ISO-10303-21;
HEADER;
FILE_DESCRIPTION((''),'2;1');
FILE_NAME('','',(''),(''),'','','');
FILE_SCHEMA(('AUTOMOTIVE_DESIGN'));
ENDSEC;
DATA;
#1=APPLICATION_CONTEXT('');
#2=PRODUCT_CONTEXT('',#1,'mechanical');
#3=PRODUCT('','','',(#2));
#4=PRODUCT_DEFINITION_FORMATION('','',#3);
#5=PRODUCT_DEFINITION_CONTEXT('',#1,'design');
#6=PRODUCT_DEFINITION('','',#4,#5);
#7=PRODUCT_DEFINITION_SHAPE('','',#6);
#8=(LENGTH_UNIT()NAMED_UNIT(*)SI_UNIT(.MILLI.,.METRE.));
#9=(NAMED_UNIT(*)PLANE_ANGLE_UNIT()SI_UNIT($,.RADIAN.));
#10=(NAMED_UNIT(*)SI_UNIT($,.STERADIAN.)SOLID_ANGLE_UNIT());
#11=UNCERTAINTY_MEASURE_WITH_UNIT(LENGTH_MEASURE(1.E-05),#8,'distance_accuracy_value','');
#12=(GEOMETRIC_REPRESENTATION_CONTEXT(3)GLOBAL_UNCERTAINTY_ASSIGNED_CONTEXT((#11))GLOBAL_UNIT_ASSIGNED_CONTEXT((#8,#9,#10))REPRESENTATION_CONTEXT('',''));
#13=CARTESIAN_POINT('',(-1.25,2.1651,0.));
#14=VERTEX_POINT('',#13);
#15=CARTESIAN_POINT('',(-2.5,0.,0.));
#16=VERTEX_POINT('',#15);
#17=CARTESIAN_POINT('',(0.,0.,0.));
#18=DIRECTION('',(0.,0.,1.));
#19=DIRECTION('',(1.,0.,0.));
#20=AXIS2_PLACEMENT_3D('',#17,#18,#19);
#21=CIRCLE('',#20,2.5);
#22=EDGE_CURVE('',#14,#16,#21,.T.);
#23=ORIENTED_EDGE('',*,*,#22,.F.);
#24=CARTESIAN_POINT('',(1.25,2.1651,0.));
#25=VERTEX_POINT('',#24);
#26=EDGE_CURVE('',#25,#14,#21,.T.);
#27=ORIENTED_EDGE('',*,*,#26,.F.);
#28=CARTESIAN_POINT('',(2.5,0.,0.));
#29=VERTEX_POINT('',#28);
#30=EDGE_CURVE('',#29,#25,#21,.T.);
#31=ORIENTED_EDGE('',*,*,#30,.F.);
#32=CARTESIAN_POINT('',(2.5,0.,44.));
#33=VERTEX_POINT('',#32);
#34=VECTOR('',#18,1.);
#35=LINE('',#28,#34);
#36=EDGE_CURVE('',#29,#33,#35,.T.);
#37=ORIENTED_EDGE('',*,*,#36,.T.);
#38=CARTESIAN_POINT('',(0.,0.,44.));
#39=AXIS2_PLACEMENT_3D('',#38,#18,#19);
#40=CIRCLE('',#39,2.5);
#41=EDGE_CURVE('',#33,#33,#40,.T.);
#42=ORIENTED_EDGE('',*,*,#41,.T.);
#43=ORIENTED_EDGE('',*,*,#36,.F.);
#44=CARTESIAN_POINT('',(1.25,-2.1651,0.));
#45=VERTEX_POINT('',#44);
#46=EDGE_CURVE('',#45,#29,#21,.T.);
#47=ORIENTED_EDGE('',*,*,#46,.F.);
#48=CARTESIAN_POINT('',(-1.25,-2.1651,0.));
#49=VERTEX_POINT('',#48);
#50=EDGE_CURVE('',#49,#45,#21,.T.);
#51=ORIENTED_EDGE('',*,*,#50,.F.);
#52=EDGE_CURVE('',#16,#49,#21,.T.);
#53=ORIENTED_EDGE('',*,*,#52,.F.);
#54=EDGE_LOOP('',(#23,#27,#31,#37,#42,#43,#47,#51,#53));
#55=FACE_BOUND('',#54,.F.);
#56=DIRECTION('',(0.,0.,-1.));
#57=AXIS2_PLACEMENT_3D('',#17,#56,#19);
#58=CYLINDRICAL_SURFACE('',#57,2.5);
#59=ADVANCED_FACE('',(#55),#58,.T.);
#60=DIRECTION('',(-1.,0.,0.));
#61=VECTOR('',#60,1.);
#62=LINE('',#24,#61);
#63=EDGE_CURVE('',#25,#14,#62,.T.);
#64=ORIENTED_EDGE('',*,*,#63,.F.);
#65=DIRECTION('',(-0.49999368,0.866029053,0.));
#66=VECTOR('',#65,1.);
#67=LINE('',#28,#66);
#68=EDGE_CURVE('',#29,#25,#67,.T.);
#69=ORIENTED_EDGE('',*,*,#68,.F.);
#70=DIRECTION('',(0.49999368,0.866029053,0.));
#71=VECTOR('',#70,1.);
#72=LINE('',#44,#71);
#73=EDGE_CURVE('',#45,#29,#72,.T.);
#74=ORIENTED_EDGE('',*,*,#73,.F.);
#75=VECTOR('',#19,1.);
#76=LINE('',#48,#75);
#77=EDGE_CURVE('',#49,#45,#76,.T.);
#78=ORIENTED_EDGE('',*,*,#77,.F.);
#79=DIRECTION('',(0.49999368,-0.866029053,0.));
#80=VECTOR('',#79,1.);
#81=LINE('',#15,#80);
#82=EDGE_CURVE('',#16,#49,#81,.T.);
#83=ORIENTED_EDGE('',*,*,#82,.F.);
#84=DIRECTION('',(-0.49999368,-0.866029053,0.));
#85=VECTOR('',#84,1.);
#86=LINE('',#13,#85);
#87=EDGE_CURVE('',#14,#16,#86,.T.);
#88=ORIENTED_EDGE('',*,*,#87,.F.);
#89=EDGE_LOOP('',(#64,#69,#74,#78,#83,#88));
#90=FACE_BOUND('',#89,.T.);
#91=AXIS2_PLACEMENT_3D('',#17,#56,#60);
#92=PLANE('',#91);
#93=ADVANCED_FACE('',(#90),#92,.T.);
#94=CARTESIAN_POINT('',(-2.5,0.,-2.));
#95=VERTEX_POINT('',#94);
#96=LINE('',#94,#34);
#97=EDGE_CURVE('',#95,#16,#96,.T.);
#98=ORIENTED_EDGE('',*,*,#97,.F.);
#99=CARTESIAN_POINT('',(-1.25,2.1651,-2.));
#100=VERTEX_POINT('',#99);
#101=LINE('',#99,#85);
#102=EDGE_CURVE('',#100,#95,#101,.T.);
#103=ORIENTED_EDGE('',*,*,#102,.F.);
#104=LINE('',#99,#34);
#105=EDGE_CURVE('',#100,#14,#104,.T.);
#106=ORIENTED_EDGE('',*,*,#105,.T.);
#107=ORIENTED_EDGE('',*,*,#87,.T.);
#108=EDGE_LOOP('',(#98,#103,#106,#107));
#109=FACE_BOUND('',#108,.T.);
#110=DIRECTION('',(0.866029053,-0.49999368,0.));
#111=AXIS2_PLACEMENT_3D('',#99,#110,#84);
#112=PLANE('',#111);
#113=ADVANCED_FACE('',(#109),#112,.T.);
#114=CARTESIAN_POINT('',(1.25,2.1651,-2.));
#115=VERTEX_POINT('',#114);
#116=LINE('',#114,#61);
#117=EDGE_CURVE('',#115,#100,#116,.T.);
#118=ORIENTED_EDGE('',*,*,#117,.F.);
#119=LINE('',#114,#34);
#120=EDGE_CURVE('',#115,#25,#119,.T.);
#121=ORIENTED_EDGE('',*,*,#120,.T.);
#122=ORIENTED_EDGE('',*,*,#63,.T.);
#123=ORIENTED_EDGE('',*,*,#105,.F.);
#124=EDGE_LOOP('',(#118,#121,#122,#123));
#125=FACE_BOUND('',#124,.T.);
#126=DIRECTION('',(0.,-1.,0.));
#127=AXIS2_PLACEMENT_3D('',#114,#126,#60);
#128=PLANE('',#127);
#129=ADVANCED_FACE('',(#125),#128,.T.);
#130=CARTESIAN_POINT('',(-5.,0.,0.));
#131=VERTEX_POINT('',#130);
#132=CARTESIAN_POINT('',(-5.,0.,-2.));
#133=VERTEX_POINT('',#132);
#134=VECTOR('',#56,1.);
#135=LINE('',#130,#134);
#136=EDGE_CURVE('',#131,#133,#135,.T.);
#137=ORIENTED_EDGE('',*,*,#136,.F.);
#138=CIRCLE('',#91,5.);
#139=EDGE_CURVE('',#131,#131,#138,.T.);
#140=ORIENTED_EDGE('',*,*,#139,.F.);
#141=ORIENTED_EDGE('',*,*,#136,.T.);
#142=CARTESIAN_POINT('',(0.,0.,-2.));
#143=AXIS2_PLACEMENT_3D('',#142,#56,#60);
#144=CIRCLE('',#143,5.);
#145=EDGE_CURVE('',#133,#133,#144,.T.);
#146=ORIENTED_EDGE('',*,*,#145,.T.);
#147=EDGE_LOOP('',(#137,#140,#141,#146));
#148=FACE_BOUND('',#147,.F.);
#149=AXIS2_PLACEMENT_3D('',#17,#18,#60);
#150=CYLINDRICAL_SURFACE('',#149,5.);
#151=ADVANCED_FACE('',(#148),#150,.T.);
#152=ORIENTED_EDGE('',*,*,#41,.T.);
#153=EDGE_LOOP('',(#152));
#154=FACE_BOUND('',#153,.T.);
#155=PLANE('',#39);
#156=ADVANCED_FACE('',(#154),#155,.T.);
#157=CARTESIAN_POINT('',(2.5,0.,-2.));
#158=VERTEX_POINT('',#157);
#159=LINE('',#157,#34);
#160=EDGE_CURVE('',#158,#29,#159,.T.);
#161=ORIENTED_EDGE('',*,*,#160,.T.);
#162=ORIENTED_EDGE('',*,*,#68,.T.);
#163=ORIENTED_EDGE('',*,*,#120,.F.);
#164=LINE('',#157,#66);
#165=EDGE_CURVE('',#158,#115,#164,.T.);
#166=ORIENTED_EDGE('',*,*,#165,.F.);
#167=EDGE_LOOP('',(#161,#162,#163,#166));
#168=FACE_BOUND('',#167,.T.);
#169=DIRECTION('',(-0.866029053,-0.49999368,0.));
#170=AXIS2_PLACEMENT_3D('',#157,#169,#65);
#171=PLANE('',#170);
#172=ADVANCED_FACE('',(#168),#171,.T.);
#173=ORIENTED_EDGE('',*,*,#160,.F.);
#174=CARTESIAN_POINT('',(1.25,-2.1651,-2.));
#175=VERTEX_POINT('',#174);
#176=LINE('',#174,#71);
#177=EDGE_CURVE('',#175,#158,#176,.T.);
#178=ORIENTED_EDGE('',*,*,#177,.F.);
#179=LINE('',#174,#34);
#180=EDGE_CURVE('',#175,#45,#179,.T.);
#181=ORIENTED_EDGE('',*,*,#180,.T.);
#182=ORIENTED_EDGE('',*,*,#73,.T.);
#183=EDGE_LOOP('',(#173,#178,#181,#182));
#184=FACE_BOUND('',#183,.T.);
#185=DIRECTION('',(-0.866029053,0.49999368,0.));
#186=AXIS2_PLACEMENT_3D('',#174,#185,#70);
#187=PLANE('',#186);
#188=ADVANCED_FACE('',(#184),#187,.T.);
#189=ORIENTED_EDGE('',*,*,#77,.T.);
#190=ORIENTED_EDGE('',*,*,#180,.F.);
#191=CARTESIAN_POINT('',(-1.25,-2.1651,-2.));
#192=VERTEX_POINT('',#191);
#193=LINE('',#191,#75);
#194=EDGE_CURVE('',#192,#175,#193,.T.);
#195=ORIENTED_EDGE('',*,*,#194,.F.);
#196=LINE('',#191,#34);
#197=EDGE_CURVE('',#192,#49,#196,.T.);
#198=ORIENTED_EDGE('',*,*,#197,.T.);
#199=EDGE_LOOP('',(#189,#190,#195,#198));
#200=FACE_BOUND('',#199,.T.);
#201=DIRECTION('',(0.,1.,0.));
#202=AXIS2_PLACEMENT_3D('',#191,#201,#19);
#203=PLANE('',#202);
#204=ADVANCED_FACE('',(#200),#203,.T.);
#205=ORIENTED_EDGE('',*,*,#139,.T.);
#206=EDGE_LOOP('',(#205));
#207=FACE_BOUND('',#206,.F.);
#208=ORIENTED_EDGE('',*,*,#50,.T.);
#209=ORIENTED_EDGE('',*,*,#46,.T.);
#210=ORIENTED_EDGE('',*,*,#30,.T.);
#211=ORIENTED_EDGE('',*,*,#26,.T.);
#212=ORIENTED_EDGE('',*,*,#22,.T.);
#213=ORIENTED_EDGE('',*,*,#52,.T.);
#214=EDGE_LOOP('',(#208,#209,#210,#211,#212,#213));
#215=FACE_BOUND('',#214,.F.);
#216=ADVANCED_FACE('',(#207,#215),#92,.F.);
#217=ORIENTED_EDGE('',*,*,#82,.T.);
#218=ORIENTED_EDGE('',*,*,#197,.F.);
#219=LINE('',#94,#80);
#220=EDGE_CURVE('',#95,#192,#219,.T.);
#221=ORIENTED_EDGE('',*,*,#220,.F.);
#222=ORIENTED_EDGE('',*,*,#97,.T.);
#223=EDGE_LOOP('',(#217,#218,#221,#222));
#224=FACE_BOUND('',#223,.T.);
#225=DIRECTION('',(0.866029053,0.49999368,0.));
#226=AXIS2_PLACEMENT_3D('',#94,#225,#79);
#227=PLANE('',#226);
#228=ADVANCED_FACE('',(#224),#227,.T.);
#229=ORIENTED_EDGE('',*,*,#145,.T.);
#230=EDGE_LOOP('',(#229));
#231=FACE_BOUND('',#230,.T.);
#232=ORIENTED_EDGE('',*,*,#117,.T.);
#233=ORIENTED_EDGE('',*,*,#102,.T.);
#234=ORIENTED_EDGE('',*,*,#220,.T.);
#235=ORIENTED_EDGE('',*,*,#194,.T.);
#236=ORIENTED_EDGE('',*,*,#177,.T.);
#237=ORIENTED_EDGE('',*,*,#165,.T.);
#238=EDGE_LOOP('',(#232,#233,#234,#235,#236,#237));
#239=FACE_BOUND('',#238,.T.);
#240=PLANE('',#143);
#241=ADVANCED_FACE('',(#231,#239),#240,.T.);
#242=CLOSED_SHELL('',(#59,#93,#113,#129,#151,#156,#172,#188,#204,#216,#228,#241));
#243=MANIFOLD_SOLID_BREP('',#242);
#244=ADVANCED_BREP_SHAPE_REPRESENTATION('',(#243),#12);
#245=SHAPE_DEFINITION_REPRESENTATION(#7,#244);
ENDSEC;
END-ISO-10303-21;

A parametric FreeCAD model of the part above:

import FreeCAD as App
import Part
import Sketcher

V = App.Vector
Q = App.Units.Quantity


def add_polygon(sketch, points):
    """Adds a closed chain of lines whose ends are joined by coincident constraints."""
    first, n = sketch.GeometryCount, len(points)
    for a, b in zip(points, points[1:] + points[:1]):
        sketch.addGeometry(Part.LineSegment(App.Vector(*a, 0), App.Vector(*b, 0)), False)
    for i in range(n):
        sketch.addConstraint(Sketcher.Constraint("Coincident", first + i, 2, first + (i + 1) % n, 1))

doc = App.newDocument("Part")
params = doc.addObject("Spreadsheet::Sheet", "Params")
for row, (alias, value) in enumerate([
    ("sketch1_diameter", "5 mm"),
    ("pad1_length", "44 mm"),
    ("sketch2_diameter", "10 mm"),
    ("pad2_length", "2 mm"),
    ("sketch3_width", "2.5 mm"),
    ("pocket1_length", "2 mm"),
], start=1):
    params.set(f"A{row}", alias)
    params.set(f"B{row}", "=" + value)
    params.setAlias(f"B{row}", alias)

body = doc.addObject("PartDesign::Body", "Body")

sketch1 = doc.addObject("Sketcher::SketchObject", "Sketch")
body.addObject(sketch1)
sketch1.AttachmentSupport = (doc.XY_Plane, [""])
sketch1.MapMode = "FlatFace"
sketch1.addGeometry(Part.Circle(V(0, 0, 0), V(0, 0, 1), 2.5), False)
sketch1.addConstraint(Sketcher.Constraint("Coincident", 0, 3, -1, 1))
sketch1.addConstraint(Sketcher.Constraint("Diameter", 0, 5.0))
sketch1.setExpression("Constraints[1]", "Params.sketch1_diameter")
pad1 = doc.addObject("PartDesign::Pad", "Pad")
body.addObject(pad1)
pad1.Profile = sketch1
pad1.setExpression("Length", "Params.pad1_length")

sketch2 = doc.addObject("Sketcher::SketchObject", "Sketch001")
body.addObject(sketch2)
sketch2.AttachmentSupport = (doc.XY_Plane, [""])
sketch2.MapMode = "FlatFace"
sketch2.addGeometry(Part.Circle(V(0, 0, 0), V(0, 0, 1), 5), False)
sketch2.addConstraint(Sketcher.Constraint("Coincident", 0, 3, -1, 1))
sketch2.addConstraint(Sketcher.Constraint("Diameter", 0, 10.0))
sketch2.setExpression("Constraints[1]", "Params.sketch2_diameter")
pad2 = doc.addObject("PartDesign::Pad", "Pad001")
body.addObject(pad2)
pad2.Profile = sketch2
pad2.setExpression("Length", "Params.pad2_length")
pad2.Reversed = True

sketch3 = doc.addObject("Sketcher::SketchObject", "Sketch002")
body.addObject(sketch3)
sketch3.AttachmentSupport = (doc.XY_Plane, [""])
sketch3.MapMode = "FlatFace"
sketch3.AttachmentOffset = App.Placement(V(0, 0, -2), App.Rotation())
add_polygon(sketch3, [(-1.2, -2.2), (-2.5, 0), (-1.2, 2.2), (1.2, 2.2), (2.5, 0), (1.2, -2.2)])
sketch3.addConstraint(Sketcher.Constraint("Horizontal", 2))
sketch3.addConstraint(Sketcher.Constraint("Horizontal", 5))
sketch3.addConstraint(Sketcher.Constraint("Symmetric", 0, 2, 3, 2, -1, 1))
sketch3.addConstraint(Sketcher.Constraint("Symmetric", 1, 2, 4, 2, -1, 1))
sketch3.addConstraint(Sketcher.Constraint("PointOnObject", 0, 2, -1))
sketch3.addConstraint(Sketcher.Constraint("Parallel", 0, 3))
sketch3.addConstraint(Sketcher.Constraint("Vertical", 2, 2, 4, 2))
sketch3.addConstraint(Sketcher.Constraint("Angle", 0, Q("119.9996 deg")))
sketch3.addConstraint(Sketcher.Constraint("DistanceX", 2, 1, 2, 2, 2.5))
sketch3.addConstraint(Sketcher.Constraint("DistanceX", 0, 2, 3, 2, 5.0))
sketch3.setExpression("Constraints[14]", "Params.sketch3_width")
pocket1 = doc.addObject("PartDesign::Pocket", "Pocket")
body.addObject(pocket1)
pocket1.Profile = sketch3
pocket1.setExpression("Length", "Params.pocket1_length")
pocket1.Reversed = True

doc.recompute()
